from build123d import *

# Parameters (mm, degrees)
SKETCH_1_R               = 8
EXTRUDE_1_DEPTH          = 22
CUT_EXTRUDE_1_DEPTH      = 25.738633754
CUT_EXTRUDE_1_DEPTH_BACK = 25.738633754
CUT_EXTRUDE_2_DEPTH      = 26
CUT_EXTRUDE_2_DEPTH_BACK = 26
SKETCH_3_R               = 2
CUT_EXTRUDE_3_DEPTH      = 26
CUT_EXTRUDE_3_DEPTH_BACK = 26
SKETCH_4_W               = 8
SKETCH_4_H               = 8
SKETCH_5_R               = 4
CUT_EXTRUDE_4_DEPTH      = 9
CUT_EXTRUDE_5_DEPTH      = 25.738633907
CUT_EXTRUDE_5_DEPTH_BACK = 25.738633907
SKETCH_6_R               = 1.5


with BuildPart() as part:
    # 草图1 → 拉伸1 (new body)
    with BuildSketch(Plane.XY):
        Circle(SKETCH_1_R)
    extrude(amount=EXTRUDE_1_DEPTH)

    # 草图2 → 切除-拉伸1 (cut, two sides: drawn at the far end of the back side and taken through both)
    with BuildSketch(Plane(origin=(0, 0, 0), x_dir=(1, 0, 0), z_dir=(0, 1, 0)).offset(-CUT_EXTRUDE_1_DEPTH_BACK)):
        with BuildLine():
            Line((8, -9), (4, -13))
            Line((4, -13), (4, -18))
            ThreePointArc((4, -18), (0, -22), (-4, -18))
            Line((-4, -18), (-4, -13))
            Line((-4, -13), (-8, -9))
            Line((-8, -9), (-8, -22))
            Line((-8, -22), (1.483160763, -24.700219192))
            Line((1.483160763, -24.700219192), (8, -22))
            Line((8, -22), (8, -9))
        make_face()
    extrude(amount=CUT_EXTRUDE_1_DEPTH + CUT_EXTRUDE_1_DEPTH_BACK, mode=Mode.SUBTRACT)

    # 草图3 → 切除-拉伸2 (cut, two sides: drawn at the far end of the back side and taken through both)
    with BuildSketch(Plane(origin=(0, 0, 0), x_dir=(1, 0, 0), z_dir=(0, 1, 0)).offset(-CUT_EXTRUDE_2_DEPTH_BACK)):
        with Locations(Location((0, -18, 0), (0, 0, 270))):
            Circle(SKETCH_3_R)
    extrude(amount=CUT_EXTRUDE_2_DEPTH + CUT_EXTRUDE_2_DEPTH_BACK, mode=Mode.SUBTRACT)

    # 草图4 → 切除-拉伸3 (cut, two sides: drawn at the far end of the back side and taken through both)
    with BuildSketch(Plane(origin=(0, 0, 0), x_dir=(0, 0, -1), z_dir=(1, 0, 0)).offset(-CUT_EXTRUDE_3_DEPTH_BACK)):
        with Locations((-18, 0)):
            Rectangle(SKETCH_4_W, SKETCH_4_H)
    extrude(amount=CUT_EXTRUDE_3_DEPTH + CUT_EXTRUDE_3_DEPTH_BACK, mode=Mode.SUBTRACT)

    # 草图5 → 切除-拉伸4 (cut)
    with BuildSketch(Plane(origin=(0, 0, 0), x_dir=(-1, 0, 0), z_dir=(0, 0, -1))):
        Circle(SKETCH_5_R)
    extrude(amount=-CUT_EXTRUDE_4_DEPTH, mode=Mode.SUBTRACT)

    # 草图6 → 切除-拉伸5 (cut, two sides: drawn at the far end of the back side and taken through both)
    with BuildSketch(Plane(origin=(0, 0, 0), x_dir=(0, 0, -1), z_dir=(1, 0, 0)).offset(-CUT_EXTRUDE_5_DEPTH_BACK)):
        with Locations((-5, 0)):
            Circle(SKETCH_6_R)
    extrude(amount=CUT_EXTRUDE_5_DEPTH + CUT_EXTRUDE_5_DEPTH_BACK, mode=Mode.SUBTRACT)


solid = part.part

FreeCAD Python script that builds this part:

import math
import FreeCAD as App
import Part
import Sketcher


def add_polygon(sketch, points):
    """Adds a closed chain of lines whose ends are joined by coincident constraints."""
    first, n = sketch.GeometryCount, len(points)
    for a, b in zip(points, points[1:] + points[:1]):
        sketch.addGeometry(Part.LineSegment(App.Vector(*a, 0), App.Vector(*b, 0)), False)
    for i in range(n):
        sketch.addConstraint(Sketcher.Constraint("Coincident", first + i, 2, first + (i + 1) % n, 1))

doc = App.newDocument("Part")
body = doc.addObject("PartDesign::Body", "Body")

sketch1 = body.newObject("Sketcher::SketchObject", "Sketch")
sketch1.AttachmentSupport = (doc.getObject("XY_Plane"), [""])
sketch1.MapMode = "FlatFace"
sketch1.addGeometry(Part.Circle(App.Vector(0, 0, 0), App.Vector(0, 0, 1), 8), False)
sketch1.addConstraint([
    Sketcher.Constraint("Coincident", 0, 3, -1, 1),
    Sketcher.Constraint("Diameter", 0, 16.0),
])
pad1 = body.newObject("PartDesign::Pad", "Pad")
pad1.Profile = sketch1
pad1.Length = 22

sketch2 = body.newObject("Sketcher::SketchObject", "Sketch001")
sketch2.AttachmentSupport = (doc.getObject("XZ_Plane"), [""])
sketch2.MapMode = "FlatFace"
sketch2.addGeometry([
    Part.LineSegment(App.Vector(8, 9, 0), App.Vector(4, 13, 0)),
    Part.LineSegment(App.Vector(4, 13, 0), App.Vector(4, 18, 0)),
    Part.ArcOfCircle(Part.Circle(App.Vector(0, 18, 0), App.Vector(0, 0, 1), 4), math.radians(0), math.radians(180)),
    Part.LineSegment(App.Vector(-4, 18, 0), App.Vector(-4, 13, 0)),
    Part.LineSegment(App.Vector(-4, 13, 0), App.Vector(-8, 9, 0)),
    Part.LineSegment(App.Vector(-8, 9, 0), App.Vector(-8, 22, 0)),
    Part.LineSegment(App.Vector(-8, 22, 0), App.Vector(1.5, 24.7, 0)),
    Part.LineSegment(App.Vector(1.5, 24.7, 0), App.Vector(8, 22, 0)),
    Part.LineSegment(App.Vector(8, 22, 0), App.Vector(8, 9, 0)),
], False)
sketch2.addConstraint([
    Sketcher.Constraint("Coincident", 0, 2, 1, 1),
    Sketcher.Constraint("Tangent", 1, 2, 2, 1),
    Sketcher.Constraint("Tangent", 2, 2, 3, 1),
    Sketcher.Constraint("Coincident", 3, 2, 4, 1),
    Sketcher.Constraint("Coincident", 4, 2, 5, 1),
    Sketcher.Constraint("Coincident", 5, 2, 6, 1),
    Sketcher.Constraint("Coincident", 6, 2, 7, 1),
    Sketcher.Constraint("Coincident", 7, 2, 8, 1),
    Sketcher.Constraint("Coincident", 8, 2, 0, 1),
    Sketcher.Constraint("Vertical", 1),
    Sketcher.Constraint("Vertical", 3),
    Sketcher.Constraint("Vertical", 5),
    Sketcher.Constraint("Vertical", 8),
    Sketcher.Constraint("Symmetric", 0, 2, 3, 2, -2),
    Sketcher.Constraint("Symmetric", 5, 2, 7, 2, -2),
    Sketcher.Constraint("Perpendicular", 0, 4),
    Sketcher.Constraint("Horizontal", 4, 2, 8, 2),
    Sketcher.Constraint("Radius", 2, 4.0),
    Sketcher.Constraint("DistanceY", 1, 1, 1, 2, 5.0),
    Sketcher.Constraint("DistanceY", 5, 1, 5, 2, 13.0),
    Sketcher.Constraint("DistanceY", -1, 1, 2, 3, 18.0),
    Sketcher.Constraint("DistanceX", 4, 2, -1, 1, 8.0),
    Sketcher.Constraint("DistanceX", -1, 1, 6, 2, 1.483161),
    Sketcher.Constraint("DistanceY", -1, 1, 6, 2, 24.700219),
])
pocket1 = body.newObject("PartDesign::Pocket", "Pocket")
pocket1.Profile = sketch2
pocket1.Type = "ThroughAll"
pocket1.Midplane = True

sketch3 = body.newObject("Sketcher::SketchObject", "Sketch002")
sketch3.AttachmentSupport = (doc.getObject("XZ_Plane"), [""])
sketch3.MapMode = "FlatFace"
sketch3.addGeometry(Part.Circle(App.Vector(0, 18, 0), App.Vector(0, 0, 1), 2), False)
sketch3.addConstraint([
    Sketcher.Constraint("PointOnObject", 0, 3, -2),
    Sketcher.Constraint("Diameter", 0, 4.0),
    Sketcher.Constraint("DistanceY", -1, 1, 0, 3, 18.0),
])
pocket2 = body.newObject("PartDesign::Pocket", "Pocket001")
pocket2.Profile = sketch3
pocket2.Type = "ThroughAll"
pocket2.Midplane = True

sketch4 = body.newObject("Sketcher::SketchObject", "Sketch003")
sketch4.AttachmentSupport = (doc.getObject("YZ_Plane"), [""])
sketch4.MapMode = "FlatFace"
add_polygon(sketch4, [(4, 22), (-4, 22), (-4, 14), (4, 14)])
sketch4.addConstraint([
    Sketcher.Constraint("Horizontal", 0),
    Sketcher.Constraint("Vertical", 1),
    Sketcher.Constraint("Horizontal", 2),
    Sketcher.Constraint("Vertical", 3),
    Sketcher.Constraint("Equal", 2, 1),
    Sketcher.Constraint("DistanceX", 0, 2, 0, 1, 8.0),
    Sketcher.Constraint("DistanceX", 0, 2, -1, 1, 4.0),
    Sketcher.Constraint("DistanceY", -1, 1, 0, 2, 22.0),
])
pocket3 = body.newObject("PartDesign::Pocket", "Pocket002")
pocket3.Profile = sketch4
pocket3.Type = "ThroughAll"
pocket3.Midplane = True

sketch5 = body.newObject("Sketcher::SketchObject", "Sketch004")
sketch5.AttachmentSupport = (doc.getObject("XY_Plane"), [""])
sketch5.MapMode = "FlatFace"
sketch5.addGeometry(Part.Circle(App.Vector(0, 0, 0), App.Vector(0, 0, 1), 4), False)
sketch5.addConstraint([
    Sketcher.Constraint("Coincident", 0, 3, -1, 1),
    Sketcher.Constraint("Diameter", 0, 8.0),
])
pocket4 = body.newObject("PartDesign::Pocket", "Pocket003")
pocket4.Profile = sketch5
pocket4.Length = 9
pocket4.Reversed = True

sketch6 = body.newObject("Sketcher::SketchObject", "Sketch005")
sketch6.AttachmentSupport = (doc.getObject("YZ_Plane"), [""])
sketch6.MapMode = "FlatFace"
sketch6.addGeometry(Part.Circle(App.Vector(0, 5, 0), App.Vector(0, 0, 1), 1.5), False)
sketch6.addConstraint([
    Sketcher.Constraint("PointOnObject", 0, 3, -2),
    Sketcher.Constraint("Diameter", 0, 3.0),
    Sketcher.Constraint("DistanceY", -1, 1, 0, 3, 5.0),
])
pocket5 = body.newObject("PartDesign::Pocket", "Pocket004")
pocket5.Profile = sketch6
pocket5.Type = "ThroughAll"
pocket5.Midplane = True

doc.recompute()
